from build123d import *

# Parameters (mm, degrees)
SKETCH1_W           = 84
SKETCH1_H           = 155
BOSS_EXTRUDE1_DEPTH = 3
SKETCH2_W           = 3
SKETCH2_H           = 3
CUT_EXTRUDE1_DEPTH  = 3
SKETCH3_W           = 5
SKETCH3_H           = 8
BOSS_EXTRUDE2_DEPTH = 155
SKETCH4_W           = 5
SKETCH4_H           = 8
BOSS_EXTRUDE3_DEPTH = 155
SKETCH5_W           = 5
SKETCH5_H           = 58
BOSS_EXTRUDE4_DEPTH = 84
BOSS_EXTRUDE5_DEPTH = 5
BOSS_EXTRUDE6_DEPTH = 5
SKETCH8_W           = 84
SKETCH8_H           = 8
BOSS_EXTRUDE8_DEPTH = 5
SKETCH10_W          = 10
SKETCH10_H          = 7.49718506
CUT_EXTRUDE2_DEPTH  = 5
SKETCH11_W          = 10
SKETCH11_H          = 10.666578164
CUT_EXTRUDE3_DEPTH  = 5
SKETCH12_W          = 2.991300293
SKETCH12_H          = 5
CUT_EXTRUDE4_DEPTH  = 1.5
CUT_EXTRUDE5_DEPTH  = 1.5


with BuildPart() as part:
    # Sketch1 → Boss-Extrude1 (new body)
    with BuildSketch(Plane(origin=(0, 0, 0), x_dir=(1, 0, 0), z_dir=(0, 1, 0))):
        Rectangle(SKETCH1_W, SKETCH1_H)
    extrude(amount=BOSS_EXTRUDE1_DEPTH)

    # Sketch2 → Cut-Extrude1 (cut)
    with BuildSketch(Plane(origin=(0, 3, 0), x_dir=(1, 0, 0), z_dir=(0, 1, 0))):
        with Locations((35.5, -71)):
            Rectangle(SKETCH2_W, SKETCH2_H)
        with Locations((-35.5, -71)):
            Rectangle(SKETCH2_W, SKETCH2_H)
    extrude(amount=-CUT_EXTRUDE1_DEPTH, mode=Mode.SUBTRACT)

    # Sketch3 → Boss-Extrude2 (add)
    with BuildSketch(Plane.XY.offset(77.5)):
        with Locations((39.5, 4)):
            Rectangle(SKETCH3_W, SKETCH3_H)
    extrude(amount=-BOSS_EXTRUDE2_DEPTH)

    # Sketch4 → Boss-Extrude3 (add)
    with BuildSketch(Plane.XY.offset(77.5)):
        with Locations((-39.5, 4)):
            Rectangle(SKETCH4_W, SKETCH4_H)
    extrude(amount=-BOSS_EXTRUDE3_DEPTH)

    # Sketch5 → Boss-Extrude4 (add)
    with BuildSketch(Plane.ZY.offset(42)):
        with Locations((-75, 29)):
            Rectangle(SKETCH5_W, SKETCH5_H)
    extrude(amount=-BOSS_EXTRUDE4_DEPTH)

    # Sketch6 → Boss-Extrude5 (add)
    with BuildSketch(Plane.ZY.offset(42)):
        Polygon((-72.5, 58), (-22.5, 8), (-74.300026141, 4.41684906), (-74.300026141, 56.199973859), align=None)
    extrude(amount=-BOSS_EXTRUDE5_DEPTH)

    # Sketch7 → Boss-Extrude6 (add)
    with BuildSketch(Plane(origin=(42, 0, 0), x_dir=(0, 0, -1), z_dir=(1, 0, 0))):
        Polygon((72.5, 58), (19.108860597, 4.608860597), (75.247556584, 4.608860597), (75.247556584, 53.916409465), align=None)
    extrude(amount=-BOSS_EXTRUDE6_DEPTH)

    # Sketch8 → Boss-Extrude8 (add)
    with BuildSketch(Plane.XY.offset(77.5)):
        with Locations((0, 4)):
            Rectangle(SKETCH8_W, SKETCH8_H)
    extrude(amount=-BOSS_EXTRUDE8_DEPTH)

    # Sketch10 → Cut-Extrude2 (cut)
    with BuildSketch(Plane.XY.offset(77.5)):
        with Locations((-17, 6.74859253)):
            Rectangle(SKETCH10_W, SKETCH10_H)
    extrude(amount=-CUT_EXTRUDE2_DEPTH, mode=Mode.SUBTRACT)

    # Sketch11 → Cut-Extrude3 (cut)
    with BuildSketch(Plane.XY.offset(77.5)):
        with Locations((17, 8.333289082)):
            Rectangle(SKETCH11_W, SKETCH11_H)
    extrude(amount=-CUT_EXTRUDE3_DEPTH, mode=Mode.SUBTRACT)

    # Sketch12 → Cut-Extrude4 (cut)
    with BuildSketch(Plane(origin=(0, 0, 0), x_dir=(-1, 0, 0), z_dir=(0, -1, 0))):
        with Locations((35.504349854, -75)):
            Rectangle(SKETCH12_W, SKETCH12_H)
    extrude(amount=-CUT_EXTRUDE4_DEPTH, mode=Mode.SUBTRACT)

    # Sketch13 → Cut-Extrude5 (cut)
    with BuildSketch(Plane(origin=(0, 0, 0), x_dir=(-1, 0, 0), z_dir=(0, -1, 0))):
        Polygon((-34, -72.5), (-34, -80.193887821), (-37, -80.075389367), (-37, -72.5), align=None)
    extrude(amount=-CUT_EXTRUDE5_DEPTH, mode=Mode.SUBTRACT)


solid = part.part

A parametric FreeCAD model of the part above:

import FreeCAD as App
import Part
import Sketcher
Q = App.Units.Quantity

doc = App.newDocument("Part")
body = doc.addObject("PartDesign::Body", "Body")

sketch1 = doc.addObject("Sketcher::SketchObject", "Sketch")
body.addObject(sketch1)
sketch1.AttachmentSupport = (doc.XZ_Plane, [""])
sketch1.MapMode = "FlatFace"
sketch1.addGeometry([
    Part.LineSegment(App.Vector(-42, -78, 0), App.Vector(-42, 78, 0)),
    Part.LineSegment(App.Vector(-42, 78, 0), App.Vector(42, 78, 0)),
    Part.LineSegment(App.Vector(42, 78, 0), App.Vector(42, -78, 0)),
    Part.LineSegment(App.Vector(42, -78, 0), App.Vector(-42, -78, 0)),
], False)
sketch1.addConstraint([
    Sketcher.Constraint("Coincident", 0, 2, 1, 1),
    Sketcher.Constraint("Coincident", 1, 2, 2, 1),
    Sketcher.Constraint("Coincident", 2, 2, 3, 1),
    Sketcher.Constraint("Coincident", 3, 2, 0, 1),
    Sketcher.Constraint("Vertical", 0),
    Sketcher.Constraint("Horizontal", 1),
    Sketcher.Constraint("Vertical", 2),
    Sketcher.Constraint("Horizontal", 3),
    Sketcher.Constraint("Symmetric", 0, 2, 2, 2, -1, 1),
    Sketcher.Constraint("DistanceX", 1, 1, 1, 2, 84.0),
    Sketcher.Constraint("DistanceY", 0, 1, 0, 2, 155.0),
])
pad1 = doc.addObject("PartDesign::Pad", "Pad")
body.addObject(pad1)
pad1.Profile = sketch1
pad1.Length = 3
pad1.Reversed = True

sketch2 = doc.addObject("Sketcher::SketchObject", "Sketch001")
body.addObject(sketch2)
sketch2.AttachmentSupport = (doc.XZ_Plane, [""])
sketch2.MapMode = "FlatFace"
sketch2.AttachmentOffset = App.Placement(App.Vector(0, 0, -3), App.Rotation())
sketch2.addGeometry([
    Part.LineSegment(App.Vector(34, 69.5, 0), App.Vector(34, 72.5, 0)),
    Part.LineSegment(App.Vector(34, 72.5, 0), App.Vector(37, 72.5, 0)),
    Part.LineSegment(App.Vector(37, 72.5, 0), App.Vector(37, 69.5, 0)),
    Part.LineSegment(App.Vector(37, 69.5, 0), App.Vector(34, 69.5, 0)),
    Part.LineSegment(App.Vector(-37, 69.5, 0), App.Vector(-37, 72.5, 0)),
    Part.LineSegment(App.Vector(-37, 72.5, 0), App.Vector(-34, 72.5, 0)),
    Part.LineSegment(App.Vector(-34, 72.5, 0), App.Vector(-34, 69.5, 0)),
    Part.LineSegment(App.Vector(-34, 69.5, 0), App.Vector(-37, 69.5, 0)),
], False)
sketch2.addConstraint([
    Sketcher.Constraint("Coincident", 0, 2, 1, 1),
    Sketcher.Constraint("Coincident", 1, 2, 2, 1),
    Sketcher.Constraint("Coincident", 2, 2, 3, 1),
    Sketcher.Constraint("Coincident", 3, 2, 0, 1),
    Sketcher.Constraint("Coincident", 4, 2, 5, 1),
    Sketcher.Constraint("Coincident", 5, 2, 6, 1),
    Sketcher.Constraint("Coincident", 6, 2, 7, 1),
    Sketcher.Constraint("Coincident", 7, 2, 4, 1),
    Sketcher.Constraint("Vertical", 0),
    Sketcher.Constraint("Horizontal", 1),
    Sketcher.Constraint("Vertical", 2),
    Sketcher.Constraint("Horizontal", 3),
    Sketcher.Constraint("Vertical", 4),
    Sketcher.Constraint("Horizontal", 5),
    Sketcher.Constraint("Vertical", 6),
    Sketcher.Constraint("Horizontal", 7),
    Sketcher.Constraint("Symmetric", 1, 2, 4, 2, -2),
    Sketcher.Constraint("Symmetric", 3, 2, 6, 2, -2),
    Sketcher.Constraint("Equal", 7, 0),
    Sketcher.Constraint("DistanceX", 1, 1, 1, 2, 3.0),
    Sketcher.Constraint("DistanceX", -1, 1, 0, 2, 34.0),
    Sketcher.Constraint("DistanceY", -1, 1, 0, 2, 72.5),
])
pocket1 = doc.addObject("PartDesign::Pocket", "Pocket")
body.addObject(pocket1)
pocket1.Profile = sketch2
pocket1.Length = 3
pocket1.Reversed = True

sketch3 = doc.addObject("Sketcher::SketchObject", "Sketch002")
body.addObject(sketch3)
sketch3.AttachmentSupport = (doc.XY_Plane, [""])
sketch3.MapMode = "FlatFace"
sketch3.AttachmentOffset = App.Placement(App.Vector(0, 0, 77.5), App.Rotation())
sketch3.addGeometry([
    Part.LineSegment(App.Vector(37, 8, 0), App.Vector(37, 0, 0)),
    Part.LineSegment(App.Vector(37, 0, 0), App.Vector(42, 0, 0)),
    Part.LineSegment(App.Vector(42, 0, 0), App.Vector(42, 8, 0)),
    Part.LineSegment(App.Vector(42, 8, 0), App.Vector(37, 8, 0)),
], False)
sketch3.addConstraint([
    Sketcher.Constraint("Coincident", 0, 2, 1, 1),
    Sketcher.Constraint("Coincident", 1, 2, 2, 1),
    Sketcher.Constraint("Coincident", 2, 2, 3, 1),
    Sketcher.Constraint("Coincident", 3, 2, 0, 1),
    Sketcher.Constraint("Vertical", 0),
    Sketcher.Constraint("Horizontal", 1),
    Sketcher.Constraint("Vertical", 2),
    Sketcher.Constraint("Horizontal", 3),
    Sketcher.Constraint("PointOnObject", 0, 2, -1),
    Sketcher.Constraint("DistanceX", 1, 1, 1, 2, 5.0),
    Sketcher.Constraint("DistanceY", 0, 2, 0, 1, 8.0),
    Sketcher.Constraint("DistanceX", -1, 1, 0, 2, 37.0),
])
pad2 = doc.addObject("PartDesign::Pad", "Pad001")
body.addObject(pad2)
pad2.Profile = sketch3
pad2.Length = 155
pad2.Reversed = True

sketch4 = doc.addObject("Sketcher::SketchObject", "Sketch003")
body.addObject(sketch4)
sketch4.AttachmentSupport = (doc.XY_Plane, [""])
sketch4.MapMode = "FlatFace"
sketch4.AttachmentOffset = App.Placement(App.Vector(0, 0, 77.5), App.Rotation())
sketch4.addGeometry([
    Part.LineSegment(App.Vector(-42, 8, 0), App.Vector(-42, 0, 0)),
    Part.LineSegment(App.Vector(-42, 0, 0), App.Vector(-37, 0, 0)),
    Part.LineSegment(App.Vector(-37, 0, 0), App.Vector(-37, 8, 0)),
    Part.LineSegment(App.Vector(-37, 8, 0), App.Vector(-42, 8, 0)),
], False)
sketch4.addConstraint([
    Sketcher.Constraint("Coincident", 0, 2, 1, 1),
    Sketcher.Constraint("Coincident", 1, 2, 2, 1),
    Sketcher.Constraint("Coincident", 2, 2, 3, 1),
    Sketcher.Constraint("Coincident", 3, 2, 0, 1),
    Sketcher.Constraint("Vertical", 0),
    Sketcher.Constraint("Horizontal", 1),
    Sketcher.Constraint("Vertical", 2),
    Sketcher.Constraint("Horizontal", 3),
    Sketcher.Constraint("PointOnObject", 0, 2, -1),
    Sketcher.Constraint("DistanceX", 1, 1, 1, 2, 5.0),
    Sketcher.Constraint("DistanceY", 0, 2, 0, 1, 8.0),
    Sketcher.Constraint("DistanceX", 0, 2, -1, 1, 42.0),
])
pad3 = doc.addObject("PartDesign::Pad", "Pad002")
body.addObject(pad3)
pad3.Profile = sketch4
pad3.Length = 155
pad3.Reversed = True

sketch5 = doc.addObject("Sketcher::SketchObject", "Sketch004")
body.addObject(sketch5)
sketch5.AttachmentSupport = (doc.YZ_Plane, [""])
sketch5.MapMode = "FlatFace"
sketch5.AttachmentOffset = App.Placement(App.Vector(0, 0, -42), App.Rotation())
sketch5.addGeometry([
    Part.LineSegment(App.Vector(58, -78, 0), App.Vector(0, -78, 0)),
    Part.LineSegment(App.Vector(0, -78, 0), App.Vector(0, -72, 0)),
    Part.LineSegment(App.Vector(0, -72, 0), App.Vector(58, -72, 0)),
    Part.LineSegment(App.Vector(58, -72, 0), App.Vector(58, -78, 0)),
], False)
sketch5.addConstraint([
    Sketcher.Constraint("Coincident", 0, 2, 1, 1),
    Sketcher.Constraint("Coincident", 1, 2, 2, 1),
    Sketcher.Constraint("Coincident", 2, 2, 3, 1),
    Sketcher.Constraint("Coincident", 3, 2, 0, 1),
    Sketcher.Constraint("Horizontal", 0),
    Sketcher.Constraint("Vertical", 1),
    Sketcher.Constraint("Horizontal", 2),
    Sketcher.Constraint("Vertical", 3),
    Sketcher.Constraint("PointOnObject", 0, 2, -2),
    Sketcher.Constraint("DistanceX", 0, 2, 0, 1, 58.0),
    Sketcher.Constraint("DistanceY", 1, 1, 1, 2, 5.0),
    Sketcher.Constraint("DistanceY", 0, 2, -1, 1, 77.5),
])
pad4 = doc.addObject("PartDesign::Pad", "Pad003")
body.addObject(pad4)
pad4.Profile = sketch5
pad4.Length = 84

sketch6 = doc.addObject("Sketcher::SketchObject", "Sketch005")
body.addObject(sketch6)
sketch6.AttachmentSupport = (doc.YZ_Plane, [""])
sketch6.MapMode = "FlatFace"
sketch6.AttachmentOffset = App.Placement(App.Vector(0, 0, -42), App.Rotation())
sketch6.addGeometry([
    Part.LineSegment(App.Vector(8, -22.5, 0), App.Vector(58, -72.5, 0)),
    Part.LineSegment(App.Vector(58, -72.5, 0), App.Vector(56.2, -74.3, 0)),
    Part.LineSegment(App.Vector(56.2, -74.3, 0), App.Vector(4.4, -74.3, 0)),
    Part.LineSegment(App.Vector(4.4, -74.3, 0), App.Vector(8, -22.5, 0)),
], False)
sketch6.addConstraint([
    Sketcher.Constraint("Coincident", 0, 2, 1, 1),
    Sketcher.Constraint("Coincident", 1, 2, 2, 1),
    Sketcher.Constraint("Coincident", 2, 2, 3, 1),
    Sketcher.Constraint("Coincident", 3, 2, 0, 1),
    Sketcher.Constraint("Horizontal", 2),
    Sketcher.Constraint("Perpendicular", 0, 1),
    Sketcher.Constraint("Angle", 0, Q("-45 deg")),
    Sketcher.Constraint("DistanceX", -1, 1, 0, 2, 58.0),
    Sketcher.Constraint("DistanceX", -1, 1, 3, 2, 8.0),
    Sketcher.Constraint("DistanceY", 0, 2, -1, 1, 72.5),
    Sketcher.Constraint("Distance", 1, 2.545621),
    Sketcher.Constraint("DistanceX", 2, 2, 2, 1, 51.783125),
])
pad5 = doc.addObject("PartDesign::Pad", "Pad004")
body.addObject(pad5)
pad5.Profile = sketch6
pad5.Length = 5

sketch7 = doc.addObject("Sketcher::SketchObject", "Sketch006")
body.addObject(sketch7)
sketch7.AttachmentSupport = (doc.YZ_Plane, [""])
sketch7.MapMode = "FlatFace"
sketch7.AttachmentOffset = App.Placement(App.Vector(0, 0, 42), App.Rotation())
sketch7.addGeometry([
    Part.LineSegment(App.Vector(58, -72.5, 0), App.Vector(4.6, -19.1, 0)),
    Part.LineSegment(App.Vector(4.6, -19.1, 0), App.Vector(4.6, -75.2, 0)),
    Part.LineSegment(App.Vector(4.6, -75.2, 0), App.Vector(53.9, -75.2, 0)),
    Part.LineSegment(App.Vector(53.9, -75.2, 0), App.Vector(58, -72.5, 0)),
], False)
sketch7.addConstraint([
    Sketcher.Constraint("Coincident", 0, 2, 1, 1),
    Sketcher.Constraint("Coincident", 1, 2, 2, 1),
    Sketcher.Constraint("Coincident", 2, 2, 3, 1),
    Sketcher.Constraint("Coincident", 3, 2, 0, 1),
    Sketcher.Constraint("Vertical", 1),
    Sketcher.Constraint("Horizontal", 2),
    Sketcher.Constraint("Angle", 0, Q("135 deg")),
    Sketcher.Constraint("DistanceX", -1, 1, 3, 2, 58.0),
    Sketcher.Constraint("DistanceY", 3, 2, -1, 1, 72.5),
    Sketcher.Constraint("DistanceX", 2, 1, 2, 2, 49.307549),
    Sketcher.Constraint("DistanceY", 1, 2, 1, 1, 56.138696),
    Sketcher.Constraint("DistanceX", -1, 1, 0, 2, 4.608861),
])
pad6 = doc.addObject("PartDesign::Pad", "Pad005")
body.addObject(pad6)
pad6.Profile = sketch7
pad6.Length = 5
pad6.Reversed = True

sketch8 = doc.addObject("Sketcher::SketchObject", "Sketch007")
body.addObject(sketch8)
sketch8.AttachmentSupport = (doc.XY_Plane, [""])
sketch8.MapMode = "FlatFace"
sketch8.AttachmentOffset = App.Placement(App.Vector(0, 0, 77.5), App.Rotation())
sketch8.addGeometry([
    Part.LineSegment(App.Vector(-42, 8, 0), App.Vector(-42, 0, 0)),
    Part.LineSegment(App.Vector(-42, 0, 0), App.Vector(42, 0, 0)),
    Part.LineSegment(App.Vector(42, 0, 0), App.Vector(42, 8, 0)),
    Part.LineSegment(App.Vector(42, 8, 0), App.Vector(-42, 8, 0)),
], False)
sketch8.addConstraint([
    Sketcher.Constraint("Coincident", 0, 2, 1, 1),
    Sketcher.Constraint("Coincident", 1, 2, 2, 1),
    Sketcher.Constraint("Coincident", 2, 2, 3, 1),
    Sketcher.Constraint("Coincident", 3, 2, 0, 1),
    Sketcher.Constraint("Vertical", 0),
    Sketcher.Constraint("Horizontal", 1),
    Sketcher.Constraint("Vertical", 2),
    Sketcher.Constraint("Horizontal", 3),
    Sketcher.Constraint("Symmetric", 0, 2, 1, 2, -1, 1),
    Sketcher.Constraint("DistanceX", 1, 1, 1, 2, 84.0),
    Sketcher.Constraint("DistanceY", 0, 2, 0, 1, 8.0),
])
pad7 = doc.addObject("PartDesign::Pad", "Pad006")
body.addObject(pad7)
pad7.Profile = sketch8
pad7.Length = 5
pad7.Reversed = True

sketch9 = doc.addObject("Sketcher::SketchObject", "Sketch008")
body.addObject(sketch9)
sketch9.AttachmentSupport = (doc.XY_Plane, [""])
sketch9.MapMode = "FlatFace"
sketch9.AttachmentOffset = App.Placement(App.Vector(0, 0, 77.5), App.Rotation())
sketch9.addGeometry([
    Part.LineSegment(App.Vector(-22, 10, 0), App.Vector(-22, 3, 0)),
    Part.LineSegment(App.Vector(-22, 3, 0), App.Vector(-12, 3, 0)),
    Part.LineSegment(App.Vector(-12, 3, 0), App.Vector(-12, 10, 0)),
    Part.LineSegment(App.Vector(-12, 10, 0), App.Vector(-22, 10, 0)),
], False)
sketch9.addConstraint([
    Sketcher.Constraint("Coincident", 0, 2, 1, 1),
    Sketcher.Constraint("Coincident", 1, 2, 2, 1),
    Sketcher.Constraint("Coincident", 2, 2, 3, 1),
    Sketcher.Constraint("Coincident", 3, 2, 0, 1),
    Sketcher.Constraint("Vertical", 0),
    Sketcher.Constraint("Horizontal", 1),
    Sketcher.Constraint("Vertical", 2),
    Sketcher.Constraint("Horizontal", 3),
    Sketcher.Constraint("DistanceX", 1, 1, 1, 2, 10.0),
    Sketcher.Constraint("DistanceX", 0, 2, -1, 1, 22.0),
    Sketcher.Constraint("DistanceY", -1, 1, 0, 2, 3.0),
    Sketcher.Constraint("DistanceY", 0, 2, 0, 1, 7.497185),
])
pocket2 = doc.addObject("PartDesign::Pocket", "Pocket001")
body.addObject(pocket2)
pocket2.Profile = sketch9
pocket2.Length = 5

sketch10 = doc.addObject("Sketcher::SketchObject", "Sketch009")
body.addObject(sketch10)
sketch10.AttachmentSupport = (doc.XY_Plane, [""])
sketch10.MapMode = "FlatFace"
sketch10.AttachmentOffset = App.Placement(App.Vector(0, 0, 77.5), App.Rotation())
sketch10.addGeometry([
    Part.LineSegment(App.Vector(12, 14, 0), App.Vector(12, 3, 0)),
    Part.LineSegment(App.Vector(12, 3, 0), App.Vector(22, 3, 0)),
    Part.LineSegment(App.Vector(22, 3, 0), App.Vector(22, 14, 0)),
    Part.LineSegment(App.Vector(22, 14, 0), App.Vector(12, 14, 0)),
], False)
sketch10.addConstraint([
    Sketcher.Constraint("Coincident", 0, 2, 1, 1),
    Sketcher.Constraint("Coincident", 1, 2, 2, 1),
    Sketcher.Constraint("Coincident", 2, 2, 3, 1),
    Sketcher.Constraint("Coincident", 3, 2, 0, 1),
    Sketcher.Constraint("Vertical", 0),
    Sketcher.Constraint("Horizontal", 1),
    Sketcher.Constraint("Vertical", 2),
    Sketcher.Constraint("Horizontal", 3),
    Sketcher.Constraint("DistanceX", 1, 1, 1, 2, 10.0),
    Sketcher.Constraint("DistanceX", -1, 1, 0, 2, 12.0),
    Sketcher.Constraint("DistanceY", -1, 1, 0, 2, 3.0),
    Sketcher.Constraint("DistanceY", 0, 2, 0, 1, 10.666578),
])
pocket3 = doc.addObject("PartDesign::Pocket", "Pocket002")
body.addObject(pocket3)
pocket3.Profile = sketch10
pocket3.Length = 5

sketch11 = doc.addObject("Sketcher::SketchObject", "Sketch010")
body.addObject(sketch11)
sketch11.AttachmentSupport = (doc.XZ_Plane, [""])
sketch11.MapMode = "FlatFace"
sketch11.addGeometry([
    Part.LineSegment(App.Vector(-34, 72.5, 0), App.Vector(-34, 77.5, 0)),
    Part.LineSegment(App.Vector(-34, 77.5, 0), App.Vector(-37, 77.5, 0)),
    Part.LineSegment(App.Vector(-37, 77.5, 0), App.Vector(-37, 72.5, 0)),
    Part.LineSegment(App.Vector(-37, 72.5, 0), App.Vector(-34, 72.5, 0)),
], False)
sketch11.addConstraint([
    Sketcher.Constraint("Coincident", 0, 2, 1, 1),
    Sketcher.Constraint("Coincident", 1, 2, 2, 1),
    Sketcher.Constraint("Coincident", 2, 2, 3, 1),
    Sketcher.Constraint("Coincident", 3, 2, 0, 1),
    Sketcher.Constraint("Vertical", 0),
    Sketcher.Constraint("Horizontal", 1),
    Sketcher.Constraint("Vertical", 2),
    Sketcher.Constraint("Horizontal", 3),
    Sketcher.Constraint("DistanceY", 0, 1, 0, 2, 5.0),
    Sketcher.Constraint("DistanceX", 1, 2, -1, 1, 37.0),
    Sketcher.Constraint("DistanceY", -1, 1, 0, 2, 77.5),
    Sketcher.Constraint("DistanceX", 1, 2, 1, 1, 2.9913),
])
pocket4 = doc.addObject("PartDesign::Pocket", "Pocket003")
body.addObject(pocket4)
pocket4.Profile = sketch11
pocket4.Length = 1.5

sketch12 = doc.addObject("Sketcher::SketchObject", "Sketch011")
body.addObject(sketch12)
sketch12.AttachmentSupport = (doc.XZ_Plane, [""])
sketch12.MapMode = "FlatFace"
sketch12.addGeometry([
    Part.LineSegment(App.Vector(34, 80.2, 0), App.Vector(34, 72.5, 0)),
    Part.LineSegment(App.Vector(34, 72.5, 0), App.Vector(37, 72.5, 0)),
    Part.LineSegment(App.Vector(37, 72.5, 0), App.Vector(37, 80.1, 0)),
    Part.LineSegment(App.Vector(37, 80.1, 0), App.Vector(34, 80.2, 0)),
], False)
sketch12.addConstraint([
    Sketcher.Constraint("Coincident", 0, 2, 1, 1),
    Sketcher.Constraint("Coincident", 1, 2, 2, 1),
    Sketcher.Constraint("Coincident", 2, 2, 3, 1),
    Sketcher.Constraint("Coincident", 3, 2, 0, 1),
    Sketcher.Constraint("Vertical", 0),
    Sketcher.Constraint("Horizontal", 1),
    Sketcher.Constraint("Vertical", 2),
    Sketcher.Constraint("DistanceX", 1, 1, 1, 2, 3.0),
    Sketcher.Constraint("DistanceX", -1, 1, 0, 2, 34.0),
    Sketcher.Constraint("DistanceY", -1, 1, 0, 2, 72.5),
    Sketcher.Constraint("DistanceY", 2, 1, 2, 2, 7.575389),
    Sketcher.Constraint("DistanceY", 2, 2, 3, 2, 0.118498),
])
pocket5 = doc.addObject("PartDesign::Pocket", "Pocket004")
body.addObject(pocket5)
pocket5.Profile = sketch12
pocket5.Length = 1.5

doc.recompute()
